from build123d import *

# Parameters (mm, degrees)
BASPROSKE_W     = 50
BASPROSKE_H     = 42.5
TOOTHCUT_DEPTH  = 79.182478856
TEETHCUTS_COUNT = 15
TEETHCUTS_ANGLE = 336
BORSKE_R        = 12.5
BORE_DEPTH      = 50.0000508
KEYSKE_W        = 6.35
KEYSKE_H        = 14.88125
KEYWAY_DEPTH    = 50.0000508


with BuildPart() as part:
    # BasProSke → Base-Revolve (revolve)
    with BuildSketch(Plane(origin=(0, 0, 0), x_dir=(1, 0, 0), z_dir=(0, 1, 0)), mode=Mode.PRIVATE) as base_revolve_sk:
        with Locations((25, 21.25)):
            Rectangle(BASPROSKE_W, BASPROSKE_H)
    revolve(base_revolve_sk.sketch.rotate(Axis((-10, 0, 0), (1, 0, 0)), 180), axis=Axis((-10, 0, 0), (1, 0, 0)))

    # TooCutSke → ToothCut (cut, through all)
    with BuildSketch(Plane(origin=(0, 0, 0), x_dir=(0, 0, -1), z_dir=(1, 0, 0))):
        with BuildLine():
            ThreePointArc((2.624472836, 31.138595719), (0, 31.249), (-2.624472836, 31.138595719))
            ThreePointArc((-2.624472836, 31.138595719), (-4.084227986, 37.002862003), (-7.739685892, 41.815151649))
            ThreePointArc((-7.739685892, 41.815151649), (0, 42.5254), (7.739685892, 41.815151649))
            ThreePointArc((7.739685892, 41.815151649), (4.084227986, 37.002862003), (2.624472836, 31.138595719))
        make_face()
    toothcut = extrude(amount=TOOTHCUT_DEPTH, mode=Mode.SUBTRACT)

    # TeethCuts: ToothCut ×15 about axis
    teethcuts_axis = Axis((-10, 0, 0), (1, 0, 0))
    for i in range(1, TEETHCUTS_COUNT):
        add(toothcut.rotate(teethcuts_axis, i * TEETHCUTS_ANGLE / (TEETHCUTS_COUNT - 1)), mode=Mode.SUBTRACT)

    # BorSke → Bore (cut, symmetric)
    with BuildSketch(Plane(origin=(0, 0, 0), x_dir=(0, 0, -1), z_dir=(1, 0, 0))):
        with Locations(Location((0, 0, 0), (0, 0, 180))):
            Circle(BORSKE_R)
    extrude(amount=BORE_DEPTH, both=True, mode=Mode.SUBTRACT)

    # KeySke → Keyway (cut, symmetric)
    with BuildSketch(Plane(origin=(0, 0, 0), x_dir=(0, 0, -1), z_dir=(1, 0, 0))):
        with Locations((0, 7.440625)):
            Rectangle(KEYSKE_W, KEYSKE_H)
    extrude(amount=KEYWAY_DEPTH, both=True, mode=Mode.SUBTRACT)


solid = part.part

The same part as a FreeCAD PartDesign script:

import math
import FreeCAD as App
import Part
import Sketcher

V = App.Vector


def add_polygon(sketch, points):
    """Adds a closed chain of lines whose ends are joined by coincident constraints."""
    first, n = sketch.GeometryCount, len(points)
    for a, b in zip(points, points[1:] + points[:1]):
        sketch.addGeometry(Part.LineSegment(App.Vector(*a, 0), App.Vector(*b, 0)), False)
    for i in range(n):
        sketch.addConstraint(Sketcher.Constraint("Coincident", first + i, 2, first + (i + 1) % n, 1))

doc = App.newDocument("Part")
body = doc.addObject("PartDesign::Body", "Body")

# Sketch on XZ plane
sketch1 = body.newObject("Sketcher::SketchObject", "Sketch")
sketch1.AttachmentSupport = (doc.getObject("XZ_Plane"), [""])
sketch1.MapMode = "FlatFace"
add_polygon(sketch1, [(0, -42), (0, 0), (50, 0), (50, -42)])  # lines 0-3
sketch1.addConstraint(Sketcher.Constraint("Vertical", 0))
sketch1.addConstraint(Sketcher.Constraint("Horizontal", 1))
sketch1.addConstraint(Sketcher.Constraint("Vertical", 2))
sketch1.addConstraint(Sketcher.Constraint("Horizontal", 3))
sketch1.addConstraint(Sketcher.Constraint("Coincident", 0, 2, -1, 1))
sketch1.addConstraint(Sketcher.Constraint("DistanceX", 1, 1, 1, 2, 50.0))
sketch1.addConstraint(Sketcher.Constraint("DistanceY", 0, 1, 0, 2, 42.5))
revolution = body.newObject("PartDesign::Revolution", "Revolution")
revolution.Profile = sketch1
revolution.ReferenceAxis = (sketch1, ["H_Axis"])
revolution.Angle = 360

# Sketch on YZ plane
sketch2 = body.newObject("Sketcher::SketchObject", "Sketch001")
sketch2.AttachmentSupport = (doc.getObject("YZ_Plane"), [""])
sketch2.MapMode = "FlatFace"
sketch2.addGeometry(Part.ArcOfCircle(Part.Circle(V(0, 0, 0), V(0, 0, 1), 31), math.radians(-4.82), math.radians(4.82)), False)
sketch2.addGeometry(Part.ArcOfCircle(Part.Circle(V(31, -18, 0), V(0, 0, 1), 15), math.radians(41), math.radians(88)), False)
sketch2.addGeometry(Part.ArcOfCircle(Part.Circle(V(0, 0, 0), V(0, 0, 1), 43), math.radians(-10), math.radians(10)), False)
sketch2.addGeometry(Part.ArcOfCircle(Part.Circle(V(31, 18, 0), V(0, 0, 1), 15), math.radians(-88), math.radians(-41)), False)
sketch2.addConstraint(Sketcher.Constraint("Coincident", 0, 1, 1, 2))
sketch2.addConstraint(Sketcher.Constraint("Coincident", 1, 1, 2, 1))
sketch2.addConstraint(Sketcher.Constraint("Coincident", 2, 2, 3, 2))
sketch2.addConstraint(Sketcher.Constraint("Coincident", 3, 1, 0, 2))
sketch2.addConstraint(Sketcher.Constraint("Coincident", 0, 3, -1, 1))
sketch2.addConstraint(Sketcher.Constraint("Coincident", 2, 3, -1, 1))
sketch2.addConstraint(Sketcher.Constraint("Equal", 1, 3))
sketch2.addConstraint(Sketcher.Constraint("Symmetric", 1, 3, 3, 3, -1))
sketch2.addConstraint(Sketcher.Constraint("Radius", 1, 15.0))
sketch2.addConstraint(Sketcher.Constraint("Radius", 0, 31.249))
sketch2.addConstraint(Sketcher.Constraint("Radius", 2, 42.5254))
sketch2.addConstraint(Sketcher.Constraint("DistanceX", -1, 1, 1, 1, 41.815152))
sketch2.addConstraint(Sketcher.Constraint("DistanceX", 1, 3, 0, 1, 0.61688))
pocket1 = body.newObject("PartDesign::Pocket", "Pocket")
pocket1.Profile = sketch2
pocket1.Type = "ThroughAll"
pocket1.Reversed = True
doc.recompute()

polarpattern = body.newObject("PartDesign::PolarPattern", "PolarPattern")
polarpattern.Originals = [pocket1]
polarpattern.Axis = (doc.getObject("X_Axis"), [""])
polarpattern.Angle = 360
polarpattern.Occurrences = 15
body.Tip = polarpattern

# Sketch on YZ plane
sketch3 = body.newObject("Sketcher::SketchObject", "Sketch002")
sketch3.AttachmentSupport = (doc.getObject("YZ_Plane"), [""])
sketch3.MapMode = "FlatFace"
sketch3.addGeometry(Part.Circle(V(0, 0, 0), V(0, 0, 1), 12), False)
sketch3.addConstraint(Sketcher.Constraint("Coincident", 0, 3, -1, 1))
sketch3.addConstraint(Sketcher.Constraint("Diameter", 0, 25.0))
pocket2 = body.newObject("PartDesign::Pocket", "Pocket001")
pocket2.Profile = sketch3
pocket2.Length = 100.000102
pocket2.Midplane = True

# Sketch on YZ plane
sketch4 = body.newObject("Sketcher::SketchObject", "Sketch003")
sketch4.AttachmentSupport = (doc.getObject("YZ_Plane"), [""])
sketch4.MapMode = "FlatFace"
add_polygon(sketch4, [(15, 3), (0, 3), (0, -3), (15, -3)])  # lines 0-3
sketch4.addConstraint(Sketcher.Constraint("Horizontal", 0))
sketch4.addConstraint(Sketcher.Constraint("Vertical", 1))
sketch4.addConstraint(Sketcher.Constraint("Horizontal", 2))
sketch4.addConstraint(Sketcher.Constraint("Vertical", 3))
sketch4.addConstraint(Sketcher.Constraint("Symmetric", 0, 2, 1, 2, -1, 1))
sketch4.addConstraint(Sketcher.Constraint("DistanceY", 1, 2, 1, 1, 6.35))
sketch4.addConstraint(Sketcher.Constraint("DistanceX", 0, 2, 0, 1, 14.88125))
pocket3 = body.newObject("PartDesign::Pocket", "Pocket002")
pocket3.Profile = sketch4
pocket3.Length = 100.000102
pocket3.Midplane = True

doc.recompute()
